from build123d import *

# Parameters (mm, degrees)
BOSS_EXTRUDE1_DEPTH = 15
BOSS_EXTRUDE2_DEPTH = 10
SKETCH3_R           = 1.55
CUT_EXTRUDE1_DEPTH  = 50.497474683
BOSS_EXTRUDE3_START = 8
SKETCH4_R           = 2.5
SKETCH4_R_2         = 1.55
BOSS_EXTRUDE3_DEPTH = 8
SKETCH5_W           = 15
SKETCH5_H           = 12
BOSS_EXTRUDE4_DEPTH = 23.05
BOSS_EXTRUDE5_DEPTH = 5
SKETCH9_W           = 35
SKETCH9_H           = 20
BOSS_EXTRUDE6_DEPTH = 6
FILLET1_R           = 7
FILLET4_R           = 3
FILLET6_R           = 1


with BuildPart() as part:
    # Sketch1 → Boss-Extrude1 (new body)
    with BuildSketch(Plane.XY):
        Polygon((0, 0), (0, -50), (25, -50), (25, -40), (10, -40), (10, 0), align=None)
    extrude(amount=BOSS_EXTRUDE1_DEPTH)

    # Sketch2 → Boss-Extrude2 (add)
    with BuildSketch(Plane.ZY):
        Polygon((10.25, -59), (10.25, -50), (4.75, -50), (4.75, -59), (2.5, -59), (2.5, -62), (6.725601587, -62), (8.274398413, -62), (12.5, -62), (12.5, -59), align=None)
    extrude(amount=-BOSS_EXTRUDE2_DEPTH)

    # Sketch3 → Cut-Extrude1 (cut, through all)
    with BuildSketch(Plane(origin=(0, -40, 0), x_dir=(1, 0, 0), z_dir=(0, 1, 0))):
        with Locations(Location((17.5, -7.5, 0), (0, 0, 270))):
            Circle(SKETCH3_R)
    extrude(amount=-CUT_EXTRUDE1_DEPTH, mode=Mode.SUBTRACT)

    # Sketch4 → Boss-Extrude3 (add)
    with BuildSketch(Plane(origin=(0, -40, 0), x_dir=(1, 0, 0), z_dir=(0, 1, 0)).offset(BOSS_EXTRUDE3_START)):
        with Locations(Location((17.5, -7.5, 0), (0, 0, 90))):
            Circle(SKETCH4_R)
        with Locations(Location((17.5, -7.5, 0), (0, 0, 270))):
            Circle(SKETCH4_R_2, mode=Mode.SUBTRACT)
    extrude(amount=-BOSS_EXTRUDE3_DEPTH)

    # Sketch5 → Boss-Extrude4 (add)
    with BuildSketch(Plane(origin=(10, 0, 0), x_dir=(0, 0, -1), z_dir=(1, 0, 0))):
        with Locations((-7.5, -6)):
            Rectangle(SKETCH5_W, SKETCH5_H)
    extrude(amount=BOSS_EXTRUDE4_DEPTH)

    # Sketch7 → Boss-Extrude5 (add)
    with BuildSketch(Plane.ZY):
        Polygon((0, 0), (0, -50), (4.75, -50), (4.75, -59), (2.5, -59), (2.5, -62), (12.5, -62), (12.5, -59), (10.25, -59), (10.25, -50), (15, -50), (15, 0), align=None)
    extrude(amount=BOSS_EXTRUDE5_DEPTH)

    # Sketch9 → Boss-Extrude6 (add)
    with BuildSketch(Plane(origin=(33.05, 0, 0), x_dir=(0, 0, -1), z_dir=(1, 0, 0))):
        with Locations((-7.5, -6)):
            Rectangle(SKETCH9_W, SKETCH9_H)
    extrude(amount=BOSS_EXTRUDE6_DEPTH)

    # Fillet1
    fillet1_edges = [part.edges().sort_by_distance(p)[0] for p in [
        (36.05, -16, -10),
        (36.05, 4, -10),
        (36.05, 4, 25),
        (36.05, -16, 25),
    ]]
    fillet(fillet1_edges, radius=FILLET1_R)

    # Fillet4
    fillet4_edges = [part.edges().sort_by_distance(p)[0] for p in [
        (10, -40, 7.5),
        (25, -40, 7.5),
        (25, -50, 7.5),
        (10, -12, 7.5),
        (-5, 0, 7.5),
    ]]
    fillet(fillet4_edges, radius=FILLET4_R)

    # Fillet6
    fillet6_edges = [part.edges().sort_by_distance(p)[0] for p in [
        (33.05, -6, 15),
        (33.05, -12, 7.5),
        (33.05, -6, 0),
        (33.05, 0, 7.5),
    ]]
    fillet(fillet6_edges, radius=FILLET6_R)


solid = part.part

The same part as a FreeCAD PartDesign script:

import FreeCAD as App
import Part
import Sketcher
from FreeCAD import Vector
Q = App.Units.Quantity


def edges_at(feature, points):
    """Names of the edges that pass closest to the given points."""
    edges = feature.Shape.Edges
    near = lambda p: min(range(len(edges)), key=lambda i: edges[i].distToShape(Part.Vertex(*p))[0])
    return sorted({f"Edge{near(p) + 1}" for p in points})


def add_polygon(sketch, points):
    """Adds a closed chain of lines whose ends are joined by coincident constraints."""
    first, n = sketch.GeometryCount, len(points)
    for a, b in zip(points, points[1:] + points[:1]):
        sketch.addGeometry(Part.LineSegment(App.Vector(*a, 0), App.Vector(*b, 0)), False)
    for i in range(n):
        sketch.addConstraint(Sketcher.Constraint("Coincident", first + i, 2, first + (i + 1) % n, 1))

doc = App.newDocument("Part")
body = doc.addObject("PartDesign::Body", "Body")

# Sketch on XY plane
sketch1 = doc.addObject("Sketcher::SketchObject", "Sketch")
body.addObject(sketch1)
sketch1.AttachmentSupport = (doc.XY_Plane, [""])
sketch1.MapMode = "FlatFace"
add_polygon(sketch1, [(0, 0), (0, -50), (25, -50), (25, -40), (10, -40), (10, 0)])  # lines 0-5
sketch1.addConstraint(Sketcher.Constraint("Vertical", 0))
sketch1.addConstraint(Sketcher.Constraint("Horizontal", 1))
sketch1.addConstraint(Sketcher.Constraint("Vertical", 2))
sketch1.addConstraint(Sketcher.Constraint("Horizontal", 3))
sketch1.addConstraint(Sketcher.Constraint("Vertical", 4))
sketch1.addConstraint(Sketcher.Constraint("Horizontal", 5))
sketch1.addConstraint(Sketcher.Constraint("Coincident", 5, 2, -1, 1))
sketch1.addConstraint(Sketcher.Constraint("Equal", 5, 2))
sketch1.addConstraint(Sketcher.Constraint("DistanceX", 1, 1, 1, 2, Q("25 mm")))
sketch1.addConstraint(Sketcher.Constraint("DistanceX", 3, 2, 3, 1, Q("15 mm")))
sketch1.addConstraint(Sketcher.Constraint("DistanceY", 0, 2, 0, 1, Q("50 mm")))
pad1 = doc.addObject("PartDesign::Pad", "Pad")
body.addObject(pad1)
pad1.Profile = sketch1
pad1.Length = 15

# Sketch on YZ plane
sketch2 = doc.addObject("Sketcher::SketchObject", "Sketch001")
body.addObject(sketch2)
sketch2.AttachmentSupport = (doc.YZ_Plane, [""])
sketch2.MapMode = "FlatFace"
add_polygon(sketch2, [(-59, 10.2), (-50, 10.2), (-50, 4.8), (-59, 4.8), (-59, 2.5), (-62, 2.5), (-62, 12.5), (-59, 12.5)])  # lines 0-7
sketch2.addConstraint(Sketcher.Constraint("Horizontal", 0))
sketch2.addConstraint(Sketcher.Constraint("Vertical", 1))
sketch2.addConstraint(Sketcher.Constraint("Horizontal", 2))
sketch2.addConstraint(Sketcher.Constraint("Vertical", 3))
sketch2.addConstraint(Sketcher.Constraint("Horizontal", 4))
sketch2.addConstraint(Sketcher.Constraint("Vertical", 5))
sketch2.addConstraint(Sketcher.Constraint("Horizontal", 6))
sketch2.addConstraint(Sketcher.Constraint("Vertical", 7))
sketch2.addConstraint(Sketcher.Constraint("Vertical", 3, 2, 6, 2))
sketch2.addConstraint(Sketcher.Constraint("Equal", 3, 7))
sketch2.addConstraint(Sketcher.Constraint("DistanceX", 0, 1, 0, 2, Q("9 mm")))
sketch2.addConstraint(Sketcher.Constraint("DistanceX", 4, 2, 4, 1, Q("3 mm")))
sketch2.addConstraint(Sketcher.Constraint("DistanceY", 5, 1, 5, 2, Q("10 mm")))
sketch2.addConstraint(Sketcher.Constraint("DistanceY", 1, 2, 1, 1, Q("5.5 mm")))
sketch2.addConstraint(Sketcher.Constraint("DistanceX", 0, 2, -1, 1, Q("50 mm")))
sketch2.addConstraint(Sketcher.Constraint("DistanceY", -1, 1, 3, 2, Q("2.5 mm")))
pad2 = doc.addObject("PartDesign::Pad", "Pad001")
body.addObject(pad2)
pad2.Profile = sketch2
pad2.Length = 10

# Sketch on XZ plane
sketch3 = doc.addObject("Sketcher::SketchObject", "Sketch002")
body.addObject(sketch3)
sketch3.AttachmentSupport = (doc.XZ_Plane, [""])
sketch3.MapMode = "FlatFace"
sketch3.AttachmentOffset = App.Placement(Vector(0, 0, 40), App.Rotation())
sketch3.addGeometry(Part.Circle(Vector(17.5, 7.5, 0), Vector(0, 0, 1), 1.6), False)
sketch3.addConstraint(Sketcher.Constraint("Diameter", 0, Q("3.1 mm")))
sketch3.addConstraint(Sketcher.Constraint("DistanceX", -1, 1, 0, 3, Q("17.5 mm")))
sketch3.addConstraint(Sketcher.Constraint("DistanceY", -1, 1, 0, 3, Q("7.5 mm")))
pocket1 = doc.addObject("PartDesign::Pocket", "Pocket")
body.addObject(pocket1)
pocket1.Profile = sketch3
pocket1.Type = "ThroughAll"
pocket1.Reversed = True

# Sketch on XZ plane
sketch4 = doc.addObject("Sketcher::SketchObject", "Sketch003")
body.addObject(sketch4)
sketch4.AttachmentSupport = (doc.XZ_Plane, [""])
sketch4.MapMode = "FlatFace"
sketch4.AttachmentOffset = App.Placement(Vector(0, 0, 32), App.Rotation())
sketch4.addGeometry(Part.Circle(Vector(17.5, 7.5, 0), Vector(0, 0, 1), 2.5), False)
sketch4.addGeometry(Part.Circle(Vector(17.5, 7.5, 0), Vector(0, 0, 1), 1.6), False)
sketch4.addConstraint(Sketcher.Constraint("Coincident", 1, 3, 0, 3))
sketch4.addConstraint(Sketcher.Constraint("Diameter", 0, Q("5 mm")))
sketch4.addConstraint(Sketcher.Constraint("Diameter", 1, Q("3.1 mm")))
sketch4.addConstraint(Sketcher.Constraint("DistanceX", -1, 1, 0, 3, Q("17.5 mm")))
sketch4.addConstraint(Sketcher.Constraint("DistanceY", -1, 1, 0, 3, Q("7.5 mm")))
pad3 = doc.addObject("PartDesign::Pad", "Pad002")
body.addObject(pad3)
pad3.Profile = sketch4
pad3.Length = 8

# Sketch on YZ plane
sketch5 = doc.addObject("Sketcher::SketchObject", "Sketch004")
body.addObject(sketch5)
sketch5.AttachmentSupport = (doc.YZ_Plane, [""])
sketch5.MapMode = "FlatFace"
sketch5.AttachmentOffset = App.Placement(Vector(0, 0, 10), App.Rotation())
add_polygon(sketch5, [(0, 15), (-12, 15), (-12, 0), (0, 0)])  # lines 0-3
sketch5.addConstraint(Sketcher.Constraint("Horizontal", 0))
sketch5.addConstraint(Sketcher.Constraint("Vertical", 1))
sketch5.addConstraint(Sketcher.Constraint("Horizontal", 2))
sketch5.addConstraint(Sketcher.Constraint("Vertical", 3))
sketch5.addConstraint(Sketcher.Constraint("Coincident", 2, 2, -1, 1))
sketch5.addConstraint(Sketcher.Constraint("DistanceX", 0, 2, 0, 1, Q("12 mm")))
sketch5.addConstraint(Sketcher.Constraint("DistanceY", 1, 2, 1, 1, Q("15 mm")))
pad4 = doc.addObject("PartDesign::Pad", "Pad003")
body.addObject(pad4)
pad4.Profile = sketch5
pad4.Length = 23.05

# Sketch on YZ plane
sketch6 = doc.addObject("Sketcher::SketchObject", "Sketch005")
body.addObject(sketch6)
sketch6.AttachmentSupport = (doc.YZ_Plane, [""])
sketch6.MapMode = "FlatFace"
add_polygon(sketch6, [(0, 0), (-50, 0), (-50, 4.8), (-59, 4.8), (-59, 2.5), (-62, 2.5), (-62, 12.5), (-59, 12.5), (-59, 10.2), (-50, 10.2), (-50, 15), (0, 15)])  # lines 0-11
sketch6.addConstraint(Sketcher.Constraint("Horizontal", 0))
sketch6.addConstraint(Sketcher.Constraint("Vertical", 1))
sketch6.addConstraint(Sketcher.Constraint("Horizontal", 2))
sketch6.addConstraint(Sketcher.Constraint("Vertical", 3))
sketch6.addConstraint(Sketcher.Constraint("Horizontal", 4))
sketch6.addConstraint(Sketcher.Constraint("Vertical", 5))
sketch6.addConstraint(Sketcher.Constraint("Horizontal", 6))
sketch6.addConstraint(Sketcher.Constraint("Vertical", 7))
sketch6.addConstraint(Sketcher.Constraint("Horizontal", 8))
sketch6.addConstraint(Sketcher.Constraint("Vertical", 9))
sketch6.addConstraint(Sketcher.Constraint("Horizontal", 10))
sketch6.addConstraint(Sketcher.Constraint("Vertical", 11))
sketch6.addConstraint(Sketcher.Constraint("Coincident", 11, 2, -1, 1))
sketch6.addConstraint(Sketcher.Constraint("Vertical", 3, 2, 6, 2))
sketch6.addConstraint(Sketcher.Constraint("Vertical", 1, 2, 8, 2))
sketch6.addConstraint(Sketcher.Constraint("Equal", 3, 7))
sketch6.addConstraint(Sketcher.Constraint("Equal", 1, 9))
sketch6.addConstraint(Sketcher.Constraint("DistanceX", 0, 2, 0, 1, Q("50 mm")))
sketch6.addConstraint(Sketcher.Constraint("DistanceX", 2, 2, 2, 1, Q("9 mm")))
sketch6.addConstraint(Sketcher.Constraint("DistanceX", 4, 2, 4, 1, Q("3 mm")))
sketch6.addConstraint(Sketcher.Constraint("DistanceY", 5, 1, 5, 2, Q("10 mm")))
sketch6.addConstraint(Sketcher.Constraint("DistanceY", 11, 2, 11, 1, Q("15 mm")))
sketch6.addConstraint(Sketcher.Constraint("DistanceY", 1, 1, 1, 2, Q("4.75 mm")))
pad5 = doc.addObject("PartDesign::Pad", "Pad004")
body.addObject(pad5)
pad5.Profile = sketch6
pad5.Length = 5
pad5.Reversed = True

# Sketch on YZ plane
sketch7 = doc.addObject("Sketcher::SketchObject", "Sketch006")
body.addObject(sketch7)
sketch7.AttachmentSupport = (doc.YZ_Plane, [""])
sketch7.MapMode = "FlatFace"
sketch7.AttachmentOffset = App.Placement(Vector(0, 0, 33.05), App.Rotation())
add_polygon(sketch7, [(4, 25), (-16, 25), (-16, -10), (4, -10)])  # lines 0-3
sketch7.addConstraint(Sketcher.Constraint("Horizontal", 0))
sketch7.addConstraint(Sketcher.Constraint("Vertical", 1))
sketch7.addConstraint(Sketcher.Constraint("Horizontal", 2))
sketch7.addConstraint(Sketcher.Constraint("Vertical", 3))
sketch7.addConstraint(Sketcher.Constraint("DistanceX", 0, 2, 0, 1, Q("20 mm")))
sketch7.addConstraint(Sketcher.Constraint("DistanceY", 1, 2, 1, 1, Q("35 mm")))
sketch7.addConstraint(Sketcher.Constraint("DistanceX", 0, 2, -1, 1, Q("16 mm")))
sketch7.addConstraint(Sketcher.Constraint("DistanceY", -1, 1, 0, 2, Q("25 mm")))
pad6 = doc.addObject("PartDesign::Pad", "Pad005")
body.addObject(pad6)
pad6.Profile = sketch7
pad6.Length = 6
doc.recompute()

fillet = doc.addObject("PartDesign::Fillet", "Fillet")
body.addObject(fillet)
fillet.Base = (pad6, edges_at(pad6, [
    (36.05, -16, -10),
    (36.05, 4, -10),
    (36.05, 4, 25),
    (36.05, -16, 25),
]))
fillet.Radius = 7
doc.recompute()

fillet2 = doc.addObject("PartDesign::Fillet", "Fillet001")
body.addObject(fillet2)
fillet2.Base = (fillet, edges_at(fillet, [
    (10, -40, 7.5),
    (25, -40, 7.5),
    (25, -50, 7.5),
    (10, -12, 7.5),
    (-5, 0, 7.5),
]))
fillet2.Radius = 3
doc.recompute()

fillet3 = doc.addObject("PartDesign::Fillet", "Fillet002")
body.addObject(fillet3)
fillet3.Base = (fillet2, edges_at(fillet2, [
    (33.05, -6, 15),
    (33.05, -12, 7.5),
    (33.05, -6, 0),
    (33.05, 0, 7.5),
]))
fillet3.Radius = 1

doc.recompute()
